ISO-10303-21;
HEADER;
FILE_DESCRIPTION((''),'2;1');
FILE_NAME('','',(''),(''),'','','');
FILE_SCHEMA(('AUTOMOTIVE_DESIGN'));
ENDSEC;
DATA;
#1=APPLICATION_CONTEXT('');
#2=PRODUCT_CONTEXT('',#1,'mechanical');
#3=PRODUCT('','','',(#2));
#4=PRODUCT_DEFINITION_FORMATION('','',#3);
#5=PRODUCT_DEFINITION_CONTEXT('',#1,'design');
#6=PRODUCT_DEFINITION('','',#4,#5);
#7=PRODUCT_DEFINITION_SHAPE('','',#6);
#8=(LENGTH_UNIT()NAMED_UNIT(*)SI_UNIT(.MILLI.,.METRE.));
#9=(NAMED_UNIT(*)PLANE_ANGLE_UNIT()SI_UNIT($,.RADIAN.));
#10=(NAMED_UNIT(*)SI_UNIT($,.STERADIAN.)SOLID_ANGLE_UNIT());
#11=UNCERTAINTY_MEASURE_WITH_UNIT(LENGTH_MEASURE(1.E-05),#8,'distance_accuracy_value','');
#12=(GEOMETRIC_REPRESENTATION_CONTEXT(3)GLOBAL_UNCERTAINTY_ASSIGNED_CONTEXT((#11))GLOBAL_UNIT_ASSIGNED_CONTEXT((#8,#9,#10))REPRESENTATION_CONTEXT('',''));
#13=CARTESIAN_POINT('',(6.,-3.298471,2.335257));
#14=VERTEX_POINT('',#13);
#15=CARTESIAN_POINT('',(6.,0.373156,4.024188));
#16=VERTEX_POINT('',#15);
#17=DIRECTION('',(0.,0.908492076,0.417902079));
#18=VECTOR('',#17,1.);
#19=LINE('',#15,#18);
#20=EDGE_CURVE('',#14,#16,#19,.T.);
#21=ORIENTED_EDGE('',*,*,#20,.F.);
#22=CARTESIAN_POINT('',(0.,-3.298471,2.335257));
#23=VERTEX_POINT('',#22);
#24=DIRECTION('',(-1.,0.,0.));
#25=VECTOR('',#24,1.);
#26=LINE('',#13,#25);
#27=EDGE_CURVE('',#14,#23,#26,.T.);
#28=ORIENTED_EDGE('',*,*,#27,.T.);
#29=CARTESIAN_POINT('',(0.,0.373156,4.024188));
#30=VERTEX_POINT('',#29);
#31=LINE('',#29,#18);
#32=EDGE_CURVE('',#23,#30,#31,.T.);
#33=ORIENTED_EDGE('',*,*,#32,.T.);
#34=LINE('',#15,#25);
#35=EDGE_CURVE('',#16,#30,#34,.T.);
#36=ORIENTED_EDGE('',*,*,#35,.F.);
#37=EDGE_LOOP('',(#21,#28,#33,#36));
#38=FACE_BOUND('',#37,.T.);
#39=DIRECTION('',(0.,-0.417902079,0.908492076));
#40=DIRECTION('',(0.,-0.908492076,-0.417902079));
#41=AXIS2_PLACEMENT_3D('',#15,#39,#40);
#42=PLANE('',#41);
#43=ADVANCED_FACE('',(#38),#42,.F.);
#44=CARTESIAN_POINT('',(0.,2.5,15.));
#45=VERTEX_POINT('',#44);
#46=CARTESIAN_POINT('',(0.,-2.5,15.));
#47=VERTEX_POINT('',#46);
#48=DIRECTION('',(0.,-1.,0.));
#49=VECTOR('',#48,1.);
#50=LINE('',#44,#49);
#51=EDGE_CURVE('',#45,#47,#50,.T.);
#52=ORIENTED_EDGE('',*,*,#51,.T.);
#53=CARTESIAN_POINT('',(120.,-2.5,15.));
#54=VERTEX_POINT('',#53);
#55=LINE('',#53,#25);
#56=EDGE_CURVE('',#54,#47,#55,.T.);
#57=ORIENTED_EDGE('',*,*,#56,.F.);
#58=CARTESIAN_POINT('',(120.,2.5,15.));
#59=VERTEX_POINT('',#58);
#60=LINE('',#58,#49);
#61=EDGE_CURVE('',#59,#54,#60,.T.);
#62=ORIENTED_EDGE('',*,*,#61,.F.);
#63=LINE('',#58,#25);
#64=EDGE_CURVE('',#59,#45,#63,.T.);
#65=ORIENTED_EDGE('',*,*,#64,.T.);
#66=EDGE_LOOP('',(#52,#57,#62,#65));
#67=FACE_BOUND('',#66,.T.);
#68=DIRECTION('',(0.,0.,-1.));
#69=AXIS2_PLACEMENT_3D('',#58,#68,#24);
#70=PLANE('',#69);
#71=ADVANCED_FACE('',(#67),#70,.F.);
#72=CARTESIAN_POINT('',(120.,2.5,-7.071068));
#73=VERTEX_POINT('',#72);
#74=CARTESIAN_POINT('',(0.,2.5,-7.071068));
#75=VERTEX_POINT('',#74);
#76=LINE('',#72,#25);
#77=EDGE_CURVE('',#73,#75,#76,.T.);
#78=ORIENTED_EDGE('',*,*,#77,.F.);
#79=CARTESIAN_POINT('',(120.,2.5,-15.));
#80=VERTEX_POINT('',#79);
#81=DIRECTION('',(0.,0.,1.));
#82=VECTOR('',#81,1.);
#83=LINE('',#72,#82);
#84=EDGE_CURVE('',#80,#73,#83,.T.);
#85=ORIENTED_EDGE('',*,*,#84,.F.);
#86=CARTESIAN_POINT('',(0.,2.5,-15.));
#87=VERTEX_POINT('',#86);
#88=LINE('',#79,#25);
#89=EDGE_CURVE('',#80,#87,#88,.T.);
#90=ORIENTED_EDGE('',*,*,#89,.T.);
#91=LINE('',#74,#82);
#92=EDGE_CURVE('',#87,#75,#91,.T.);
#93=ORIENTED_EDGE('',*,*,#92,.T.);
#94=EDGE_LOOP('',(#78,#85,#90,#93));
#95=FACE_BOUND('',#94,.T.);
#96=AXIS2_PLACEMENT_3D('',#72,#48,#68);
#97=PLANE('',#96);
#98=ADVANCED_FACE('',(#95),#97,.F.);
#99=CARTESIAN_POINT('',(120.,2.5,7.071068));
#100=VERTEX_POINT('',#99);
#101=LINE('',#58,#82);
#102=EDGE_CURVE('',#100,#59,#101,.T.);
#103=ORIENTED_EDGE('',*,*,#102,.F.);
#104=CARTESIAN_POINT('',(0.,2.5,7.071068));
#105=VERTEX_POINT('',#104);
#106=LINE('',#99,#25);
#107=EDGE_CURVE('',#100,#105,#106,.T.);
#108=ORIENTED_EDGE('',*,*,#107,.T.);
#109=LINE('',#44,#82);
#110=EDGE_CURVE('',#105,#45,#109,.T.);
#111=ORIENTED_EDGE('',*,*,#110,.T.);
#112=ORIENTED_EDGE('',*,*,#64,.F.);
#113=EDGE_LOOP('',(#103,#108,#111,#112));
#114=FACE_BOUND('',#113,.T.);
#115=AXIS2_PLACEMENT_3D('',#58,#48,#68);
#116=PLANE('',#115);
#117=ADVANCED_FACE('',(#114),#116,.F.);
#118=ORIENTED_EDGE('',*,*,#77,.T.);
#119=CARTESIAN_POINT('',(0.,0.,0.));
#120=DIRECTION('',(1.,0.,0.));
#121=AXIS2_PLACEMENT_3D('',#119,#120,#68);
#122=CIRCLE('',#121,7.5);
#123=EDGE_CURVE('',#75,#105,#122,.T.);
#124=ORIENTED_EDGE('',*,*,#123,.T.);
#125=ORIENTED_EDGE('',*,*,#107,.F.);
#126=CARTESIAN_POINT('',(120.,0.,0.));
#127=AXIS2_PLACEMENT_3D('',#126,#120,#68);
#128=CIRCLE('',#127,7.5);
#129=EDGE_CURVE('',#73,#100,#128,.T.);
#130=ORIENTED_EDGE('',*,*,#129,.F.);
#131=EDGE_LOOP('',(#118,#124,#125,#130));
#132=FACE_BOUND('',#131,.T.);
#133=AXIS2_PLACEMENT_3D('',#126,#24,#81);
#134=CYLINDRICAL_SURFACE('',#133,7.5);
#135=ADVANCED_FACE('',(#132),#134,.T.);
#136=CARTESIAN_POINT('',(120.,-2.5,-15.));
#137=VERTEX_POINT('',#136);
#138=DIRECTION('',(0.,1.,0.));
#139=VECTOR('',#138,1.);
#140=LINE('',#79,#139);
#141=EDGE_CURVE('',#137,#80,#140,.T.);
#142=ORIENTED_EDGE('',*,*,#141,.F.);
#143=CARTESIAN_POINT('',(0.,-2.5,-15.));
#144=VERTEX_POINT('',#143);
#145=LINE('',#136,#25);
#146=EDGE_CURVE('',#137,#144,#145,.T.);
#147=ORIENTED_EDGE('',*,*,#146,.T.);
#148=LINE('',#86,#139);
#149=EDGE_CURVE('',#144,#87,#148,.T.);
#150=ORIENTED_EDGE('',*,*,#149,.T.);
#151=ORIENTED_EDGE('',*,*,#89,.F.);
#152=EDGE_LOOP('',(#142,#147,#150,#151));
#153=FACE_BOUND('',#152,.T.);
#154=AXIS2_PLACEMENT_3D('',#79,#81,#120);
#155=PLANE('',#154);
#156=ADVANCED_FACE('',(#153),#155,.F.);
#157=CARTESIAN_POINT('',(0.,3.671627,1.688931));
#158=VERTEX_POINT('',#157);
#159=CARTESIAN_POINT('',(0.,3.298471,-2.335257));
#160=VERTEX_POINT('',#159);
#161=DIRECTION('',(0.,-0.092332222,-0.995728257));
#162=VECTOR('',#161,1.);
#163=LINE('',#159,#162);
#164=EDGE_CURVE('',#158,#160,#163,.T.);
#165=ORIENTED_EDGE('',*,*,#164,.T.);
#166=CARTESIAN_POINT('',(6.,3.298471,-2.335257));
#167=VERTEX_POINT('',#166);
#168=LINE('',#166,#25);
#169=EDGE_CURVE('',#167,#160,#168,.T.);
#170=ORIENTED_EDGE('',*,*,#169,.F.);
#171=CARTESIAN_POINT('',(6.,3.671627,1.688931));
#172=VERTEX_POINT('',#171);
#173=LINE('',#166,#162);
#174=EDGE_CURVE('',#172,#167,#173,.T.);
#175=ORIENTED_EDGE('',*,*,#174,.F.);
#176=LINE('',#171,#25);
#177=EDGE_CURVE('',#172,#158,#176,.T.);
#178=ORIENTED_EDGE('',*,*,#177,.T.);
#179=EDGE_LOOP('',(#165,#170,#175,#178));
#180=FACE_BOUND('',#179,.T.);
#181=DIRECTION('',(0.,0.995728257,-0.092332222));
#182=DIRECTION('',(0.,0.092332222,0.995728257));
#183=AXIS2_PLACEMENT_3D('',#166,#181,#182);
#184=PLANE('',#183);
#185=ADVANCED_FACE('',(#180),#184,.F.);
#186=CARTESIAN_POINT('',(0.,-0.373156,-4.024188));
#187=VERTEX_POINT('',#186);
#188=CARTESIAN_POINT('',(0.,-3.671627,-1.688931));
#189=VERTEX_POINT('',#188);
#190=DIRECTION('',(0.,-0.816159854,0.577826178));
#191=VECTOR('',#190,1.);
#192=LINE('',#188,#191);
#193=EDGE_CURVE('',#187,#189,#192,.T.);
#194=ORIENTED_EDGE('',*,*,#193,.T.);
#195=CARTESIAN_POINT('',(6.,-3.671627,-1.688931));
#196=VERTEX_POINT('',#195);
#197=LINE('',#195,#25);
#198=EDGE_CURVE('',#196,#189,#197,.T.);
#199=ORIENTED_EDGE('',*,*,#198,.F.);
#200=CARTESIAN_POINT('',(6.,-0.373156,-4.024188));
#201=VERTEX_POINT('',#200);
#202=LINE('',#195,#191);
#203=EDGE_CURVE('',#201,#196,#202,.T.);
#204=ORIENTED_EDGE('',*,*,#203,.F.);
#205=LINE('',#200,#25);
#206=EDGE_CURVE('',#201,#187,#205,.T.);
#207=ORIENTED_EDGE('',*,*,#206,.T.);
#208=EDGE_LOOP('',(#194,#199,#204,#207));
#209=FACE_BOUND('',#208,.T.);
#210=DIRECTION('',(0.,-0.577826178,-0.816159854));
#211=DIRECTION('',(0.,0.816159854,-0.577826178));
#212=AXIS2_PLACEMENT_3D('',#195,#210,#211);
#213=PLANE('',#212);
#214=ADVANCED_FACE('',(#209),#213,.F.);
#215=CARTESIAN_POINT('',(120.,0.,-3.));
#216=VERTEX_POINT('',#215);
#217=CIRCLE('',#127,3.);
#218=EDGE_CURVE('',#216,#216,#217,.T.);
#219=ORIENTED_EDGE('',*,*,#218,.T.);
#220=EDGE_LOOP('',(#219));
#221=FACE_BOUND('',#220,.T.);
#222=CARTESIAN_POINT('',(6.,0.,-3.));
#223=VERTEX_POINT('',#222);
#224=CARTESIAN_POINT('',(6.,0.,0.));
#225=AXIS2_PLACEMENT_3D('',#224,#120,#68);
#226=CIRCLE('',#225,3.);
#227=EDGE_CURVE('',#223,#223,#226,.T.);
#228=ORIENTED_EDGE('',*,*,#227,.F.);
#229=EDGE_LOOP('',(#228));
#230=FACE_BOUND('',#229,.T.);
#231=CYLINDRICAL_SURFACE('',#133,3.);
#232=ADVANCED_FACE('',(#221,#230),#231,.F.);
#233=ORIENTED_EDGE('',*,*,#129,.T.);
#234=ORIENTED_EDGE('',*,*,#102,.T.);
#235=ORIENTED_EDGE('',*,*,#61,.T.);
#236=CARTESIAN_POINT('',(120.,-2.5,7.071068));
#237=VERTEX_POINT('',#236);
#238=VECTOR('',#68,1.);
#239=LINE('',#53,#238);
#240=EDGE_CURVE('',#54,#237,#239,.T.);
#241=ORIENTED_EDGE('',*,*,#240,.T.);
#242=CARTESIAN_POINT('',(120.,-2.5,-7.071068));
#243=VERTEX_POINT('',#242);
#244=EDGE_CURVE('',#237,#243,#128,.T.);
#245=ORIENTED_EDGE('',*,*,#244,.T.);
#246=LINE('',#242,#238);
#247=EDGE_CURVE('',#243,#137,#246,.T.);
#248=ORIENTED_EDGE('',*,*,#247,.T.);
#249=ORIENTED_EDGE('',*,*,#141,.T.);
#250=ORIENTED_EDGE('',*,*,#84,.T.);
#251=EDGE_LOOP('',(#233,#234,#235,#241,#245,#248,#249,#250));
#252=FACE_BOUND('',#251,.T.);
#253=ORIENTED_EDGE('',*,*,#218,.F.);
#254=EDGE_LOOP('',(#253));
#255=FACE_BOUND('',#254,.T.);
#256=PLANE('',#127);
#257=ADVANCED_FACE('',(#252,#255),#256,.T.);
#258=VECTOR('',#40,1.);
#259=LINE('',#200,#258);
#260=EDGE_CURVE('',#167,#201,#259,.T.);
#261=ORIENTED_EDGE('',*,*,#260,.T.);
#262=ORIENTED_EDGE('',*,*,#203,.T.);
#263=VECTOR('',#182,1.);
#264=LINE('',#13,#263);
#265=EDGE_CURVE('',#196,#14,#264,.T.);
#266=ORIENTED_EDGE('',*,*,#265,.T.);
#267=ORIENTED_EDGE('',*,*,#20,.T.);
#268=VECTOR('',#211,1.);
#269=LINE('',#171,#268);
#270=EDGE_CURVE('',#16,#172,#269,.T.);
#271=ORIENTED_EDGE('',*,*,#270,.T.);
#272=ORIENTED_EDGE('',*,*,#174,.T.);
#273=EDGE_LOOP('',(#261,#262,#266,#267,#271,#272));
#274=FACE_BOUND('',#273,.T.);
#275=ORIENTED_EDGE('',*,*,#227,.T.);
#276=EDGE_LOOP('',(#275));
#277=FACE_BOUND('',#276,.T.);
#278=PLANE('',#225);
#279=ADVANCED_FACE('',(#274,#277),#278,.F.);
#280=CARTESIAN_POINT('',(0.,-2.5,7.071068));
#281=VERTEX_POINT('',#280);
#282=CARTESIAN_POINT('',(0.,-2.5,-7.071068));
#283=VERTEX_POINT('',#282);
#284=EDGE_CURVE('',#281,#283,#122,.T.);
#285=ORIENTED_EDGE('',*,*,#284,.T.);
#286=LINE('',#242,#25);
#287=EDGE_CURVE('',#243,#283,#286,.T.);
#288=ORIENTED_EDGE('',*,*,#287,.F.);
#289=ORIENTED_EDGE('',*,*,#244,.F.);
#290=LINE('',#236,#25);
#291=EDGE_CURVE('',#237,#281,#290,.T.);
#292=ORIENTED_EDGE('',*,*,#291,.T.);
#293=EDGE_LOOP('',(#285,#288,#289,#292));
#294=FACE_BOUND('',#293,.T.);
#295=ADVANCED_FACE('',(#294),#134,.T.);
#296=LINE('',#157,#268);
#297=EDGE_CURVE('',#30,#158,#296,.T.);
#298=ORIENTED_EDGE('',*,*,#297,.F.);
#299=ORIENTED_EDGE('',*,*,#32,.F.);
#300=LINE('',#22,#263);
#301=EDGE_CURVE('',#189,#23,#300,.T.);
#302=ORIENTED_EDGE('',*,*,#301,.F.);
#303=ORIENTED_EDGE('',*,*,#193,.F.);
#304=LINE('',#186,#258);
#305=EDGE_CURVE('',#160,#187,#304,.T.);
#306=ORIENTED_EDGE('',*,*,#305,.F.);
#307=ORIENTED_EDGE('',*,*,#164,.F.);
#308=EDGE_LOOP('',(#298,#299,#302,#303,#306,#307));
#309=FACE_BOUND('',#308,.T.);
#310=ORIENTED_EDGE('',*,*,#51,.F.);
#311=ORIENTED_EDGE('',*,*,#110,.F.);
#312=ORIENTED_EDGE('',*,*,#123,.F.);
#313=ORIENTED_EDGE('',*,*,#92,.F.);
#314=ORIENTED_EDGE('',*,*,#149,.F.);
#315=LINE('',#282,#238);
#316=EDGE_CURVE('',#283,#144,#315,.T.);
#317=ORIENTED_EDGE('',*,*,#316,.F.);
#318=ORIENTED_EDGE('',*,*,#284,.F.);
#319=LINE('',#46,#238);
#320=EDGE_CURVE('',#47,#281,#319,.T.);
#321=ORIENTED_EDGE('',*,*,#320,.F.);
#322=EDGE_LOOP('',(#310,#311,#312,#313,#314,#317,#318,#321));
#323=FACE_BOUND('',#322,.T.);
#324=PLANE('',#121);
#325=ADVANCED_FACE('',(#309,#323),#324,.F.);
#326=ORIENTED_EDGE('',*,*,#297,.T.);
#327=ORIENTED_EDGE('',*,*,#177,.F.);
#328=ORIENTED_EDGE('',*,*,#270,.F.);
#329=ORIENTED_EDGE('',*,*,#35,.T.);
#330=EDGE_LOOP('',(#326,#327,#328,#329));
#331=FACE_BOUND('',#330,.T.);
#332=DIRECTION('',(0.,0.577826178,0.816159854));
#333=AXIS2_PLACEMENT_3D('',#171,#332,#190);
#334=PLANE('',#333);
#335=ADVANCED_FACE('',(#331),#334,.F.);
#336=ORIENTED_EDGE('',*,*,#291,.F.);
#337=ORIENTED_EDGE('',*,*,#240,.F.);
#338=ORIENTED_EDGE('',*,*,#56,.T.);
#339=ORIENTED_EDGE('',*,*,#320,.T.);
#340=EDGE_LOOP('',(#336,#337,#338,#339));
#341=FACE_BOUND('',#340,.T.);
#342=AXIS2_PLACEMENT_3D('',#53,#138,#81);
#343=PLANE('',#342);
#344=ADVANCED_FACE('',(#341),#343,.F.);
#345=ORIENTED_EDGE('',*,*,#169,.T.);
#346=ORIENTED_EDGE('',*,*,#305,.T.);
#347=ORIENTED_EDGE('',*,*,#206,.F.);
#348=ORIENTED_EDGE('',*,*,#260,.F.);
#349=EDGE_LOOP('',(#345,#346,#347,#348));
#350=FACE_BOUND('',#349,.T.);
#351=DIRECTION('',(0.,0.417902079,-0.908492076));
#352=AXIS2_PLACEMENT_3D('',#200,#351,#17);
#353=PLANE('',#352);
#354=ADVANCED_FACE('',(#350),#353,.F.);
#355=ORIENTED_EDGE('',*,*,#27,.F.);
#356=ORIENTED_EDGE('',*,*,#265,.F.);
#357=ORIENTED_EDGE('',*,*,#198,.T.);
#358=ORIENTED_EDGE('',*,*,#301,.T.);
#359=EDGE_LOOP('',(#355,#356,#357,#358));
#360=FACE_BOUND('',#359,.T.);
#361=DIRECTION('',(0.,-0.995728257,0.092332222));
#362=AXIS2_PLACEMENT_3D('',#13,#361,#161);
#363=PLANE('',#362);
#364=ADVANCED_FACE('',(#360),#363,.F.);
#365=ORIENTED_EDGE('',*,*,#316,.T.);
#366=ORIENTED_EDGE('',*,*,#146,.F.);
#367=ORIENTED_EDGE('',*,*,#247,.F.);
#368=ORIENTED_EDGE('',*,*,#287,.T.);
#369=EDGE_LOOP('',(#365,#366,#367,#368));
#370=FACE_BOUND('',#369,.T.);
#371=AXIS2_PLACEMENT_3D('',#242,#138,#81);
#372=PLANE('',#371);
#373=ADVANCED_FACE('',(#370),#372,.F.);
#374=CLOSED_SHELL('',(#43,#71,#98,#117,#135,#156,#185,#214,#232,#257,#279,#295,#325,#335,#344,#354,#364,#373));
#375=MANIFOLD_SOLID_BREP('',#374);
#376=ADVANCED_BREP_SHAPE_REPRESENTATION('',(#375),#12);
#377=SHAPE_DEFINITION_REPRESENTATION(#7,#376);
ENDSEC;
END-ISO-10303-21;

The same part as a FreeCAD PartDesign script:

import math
import FreeCAD as App
import Part
import Sketcher


def add_polygon(sketch, points):
    """Adds a closed chain of lines whose ends are joined by coincident constraints."""
    first, n = sketch.GeometryCount, len(points)
    for a, b in zip(points, points[1:] + points[:1]):
        sketch.addGeometry(Part.LineSegment(App.Vector(*a, 0), App.Vector(*b, 0)), False)
    for i in range(n):
        sketch.addConstraint(Sketcher.Constraint("Coincident", first + i, 2, first + (i + 1) % n, 1))

doc = App.newDocument("Part")
body = doc.addObject("PartDesign::Body", "Body")

# Sketch on YZ plane
sketch1 = body.newObject("Sketcher::SketchObject", "Sketch")
sketch1.AttachmentSupport = (doc.getObject("YZ_Plane"), [""])
sketch1.MapMode = "FlatFace"
sketch1.addGeometry([
    Part.LineSegment(App.Vector(2.5, 7.071068, 0), App.Vector(2.5, 15, 0)),  # 0
    Part.LineSegment(App.Vector(2.5, 15, 0), App.Vector(-2.5, 15, 0)),  # 1
    Part.LineSegment(App.Vector(-2.5, 15, 0), App.Vector(-2.5, 7.071068, 0)),  # 2
    Part.ArcOfCircle(Part.Circle(App.Vector(0, 0, 0), App.Vector(0, 0, 1), 7.5), math.radians(109.471221), math.radians(250.528779)),  # 3
    Part.LineSegment(App.Vector(-2.5, -7.071068, 0), App.Vector(-2.5, -15, 0)),  # 4
    Part.LineSegment(App.Vector(-2.5, -15, 0), App.Vector(2.5, -15, 0)),  # 5
    Part.LineSegment(App.Vector(2.5, -15, 0), App.Vector(2.5, -7.071068, 0)),  # 6
    Part.ArcOfCircle(Part.Circle(App.Vector(0, 0, 0), App.Vector(0, 0, 1), 7.5), math.radians(-70.528779), math.radians(70.528779)),  # 7
    Part.Circle(App.Vector(0, 0, 0), App.Vector(0, 0, 1), 3),  # 8
], False)
sketch1.addConstraint([
    Sketcher.Constraint("Coincident", 0, 2, 1, 1),
    Sketcher.Constraint("Coincident", 1, 2, 2, 1),
    Sketcher.Constraint("Coincident", 2, 2, 3, 1),
    Sketcher.Constraint("Coincident", 3, 2, 4, 1),
    Sketcher.Constraint("Coincident", 4, 2, 5, 1),
    Sketcher.Constraint("Coincident", 5, 2, 6, 1),
    Sketcher.Constraint("Coincident", 6, 2, 7, 1),
    Sketcher.Constraint("Coincident", 7, 2, 0, 1),
    Sketcher.Constraint("Vertical", 0),
    Sketcher.Constraint("Horizontal", 1),
    Sketcher.Constraint("Vertical", 2),
    Sketcher.Constraint("Vertical", 4),
    Sketcher.Constraint("Horizontal", 5),
    Sketcher.Constraint("Vertical", 6),
    Sketcher.Constraint("Coincident", 3, 3, -1, 1),
    Sketcher.Constraint("Coincident", 7, 3, -1, 1),
    Sketcher.Constraint("Coincident", 8, 3, -1, 1),
    Sketcher.Constraint("Equal", 3, 7),
    Sketcher.Constraint("Symmetric", 0, 2, 4, 2, -1, 1),
    Sketcher.Constraint("Horizontal", 3, 2, 6, 2),
    Sketcher.Constraint("Horizontal", 2, 2, 7, 2),
    Sketcher.Constraint("Diameter", 8, 6.0),
    Sketcher.Constraint("Radius", 3, 7.5),
    Sketcher.Constraint("DistanceX", 1, 2, 1, 1, 5.0),
    Sketcher.Constraint("DistanceY", -1, 1, 0, 2, 15.0),
])
pad1 = body.newObject("PartDesign::Pad", "Pad")
pad1.Profile = sketch1
pad1.Length = 120

# Sketch on YZ plane
sketch2 = body.newObject("Sketcher::SketchObject", "Sketch001")
sketch2.AttachmentSupport = (doc.getObject("YZ_Plane"), [""])
sketch2.MapMode = "FlatFace"
add_polygon(sketch2, [(0.373156, 4.024188), (3.671627, 1.688931), (3.298471, -2.335257), (-0.373156, -4.024188), (-3.671627, -1.688931), (-3.298471, 2.335257)])  # lines 0-5
sketch2.addConstraint([
    Sketcher.Constraint("Symmetric", 0, 2, 3, 2, -1, 1),
    Sketcher.Constraint("Symmetric", 1, 2, 4, 2, -1, 1),
    Sketcher.Constraint("Symmetric", 2, 2, 5, 2, -1, 1),
    Sketcher.Constraint("Equal", 0, 1),
    Sketcher.Constraint("Equal", 1, 2),
    Sketcher.Constraint("Distance", 0, 4.041452),
    Sketcher.Constraint("DistanceY", -1, 1, 0, 2, 1.688931),
    Sketcher.Constraint("DistanceX", -1, 1, 1, 2, 3.298471),
    Sketcher.Constraint("DistanceY", 2, 2, 1, 2, 1.688931),
])
pocket1 = body.newObject("PartDesign::Pocket", "Pocket")
pocket1.Profile = sketch2
pocket1.Length = 6
pocket1.Reversed = True

doc.recompute()
